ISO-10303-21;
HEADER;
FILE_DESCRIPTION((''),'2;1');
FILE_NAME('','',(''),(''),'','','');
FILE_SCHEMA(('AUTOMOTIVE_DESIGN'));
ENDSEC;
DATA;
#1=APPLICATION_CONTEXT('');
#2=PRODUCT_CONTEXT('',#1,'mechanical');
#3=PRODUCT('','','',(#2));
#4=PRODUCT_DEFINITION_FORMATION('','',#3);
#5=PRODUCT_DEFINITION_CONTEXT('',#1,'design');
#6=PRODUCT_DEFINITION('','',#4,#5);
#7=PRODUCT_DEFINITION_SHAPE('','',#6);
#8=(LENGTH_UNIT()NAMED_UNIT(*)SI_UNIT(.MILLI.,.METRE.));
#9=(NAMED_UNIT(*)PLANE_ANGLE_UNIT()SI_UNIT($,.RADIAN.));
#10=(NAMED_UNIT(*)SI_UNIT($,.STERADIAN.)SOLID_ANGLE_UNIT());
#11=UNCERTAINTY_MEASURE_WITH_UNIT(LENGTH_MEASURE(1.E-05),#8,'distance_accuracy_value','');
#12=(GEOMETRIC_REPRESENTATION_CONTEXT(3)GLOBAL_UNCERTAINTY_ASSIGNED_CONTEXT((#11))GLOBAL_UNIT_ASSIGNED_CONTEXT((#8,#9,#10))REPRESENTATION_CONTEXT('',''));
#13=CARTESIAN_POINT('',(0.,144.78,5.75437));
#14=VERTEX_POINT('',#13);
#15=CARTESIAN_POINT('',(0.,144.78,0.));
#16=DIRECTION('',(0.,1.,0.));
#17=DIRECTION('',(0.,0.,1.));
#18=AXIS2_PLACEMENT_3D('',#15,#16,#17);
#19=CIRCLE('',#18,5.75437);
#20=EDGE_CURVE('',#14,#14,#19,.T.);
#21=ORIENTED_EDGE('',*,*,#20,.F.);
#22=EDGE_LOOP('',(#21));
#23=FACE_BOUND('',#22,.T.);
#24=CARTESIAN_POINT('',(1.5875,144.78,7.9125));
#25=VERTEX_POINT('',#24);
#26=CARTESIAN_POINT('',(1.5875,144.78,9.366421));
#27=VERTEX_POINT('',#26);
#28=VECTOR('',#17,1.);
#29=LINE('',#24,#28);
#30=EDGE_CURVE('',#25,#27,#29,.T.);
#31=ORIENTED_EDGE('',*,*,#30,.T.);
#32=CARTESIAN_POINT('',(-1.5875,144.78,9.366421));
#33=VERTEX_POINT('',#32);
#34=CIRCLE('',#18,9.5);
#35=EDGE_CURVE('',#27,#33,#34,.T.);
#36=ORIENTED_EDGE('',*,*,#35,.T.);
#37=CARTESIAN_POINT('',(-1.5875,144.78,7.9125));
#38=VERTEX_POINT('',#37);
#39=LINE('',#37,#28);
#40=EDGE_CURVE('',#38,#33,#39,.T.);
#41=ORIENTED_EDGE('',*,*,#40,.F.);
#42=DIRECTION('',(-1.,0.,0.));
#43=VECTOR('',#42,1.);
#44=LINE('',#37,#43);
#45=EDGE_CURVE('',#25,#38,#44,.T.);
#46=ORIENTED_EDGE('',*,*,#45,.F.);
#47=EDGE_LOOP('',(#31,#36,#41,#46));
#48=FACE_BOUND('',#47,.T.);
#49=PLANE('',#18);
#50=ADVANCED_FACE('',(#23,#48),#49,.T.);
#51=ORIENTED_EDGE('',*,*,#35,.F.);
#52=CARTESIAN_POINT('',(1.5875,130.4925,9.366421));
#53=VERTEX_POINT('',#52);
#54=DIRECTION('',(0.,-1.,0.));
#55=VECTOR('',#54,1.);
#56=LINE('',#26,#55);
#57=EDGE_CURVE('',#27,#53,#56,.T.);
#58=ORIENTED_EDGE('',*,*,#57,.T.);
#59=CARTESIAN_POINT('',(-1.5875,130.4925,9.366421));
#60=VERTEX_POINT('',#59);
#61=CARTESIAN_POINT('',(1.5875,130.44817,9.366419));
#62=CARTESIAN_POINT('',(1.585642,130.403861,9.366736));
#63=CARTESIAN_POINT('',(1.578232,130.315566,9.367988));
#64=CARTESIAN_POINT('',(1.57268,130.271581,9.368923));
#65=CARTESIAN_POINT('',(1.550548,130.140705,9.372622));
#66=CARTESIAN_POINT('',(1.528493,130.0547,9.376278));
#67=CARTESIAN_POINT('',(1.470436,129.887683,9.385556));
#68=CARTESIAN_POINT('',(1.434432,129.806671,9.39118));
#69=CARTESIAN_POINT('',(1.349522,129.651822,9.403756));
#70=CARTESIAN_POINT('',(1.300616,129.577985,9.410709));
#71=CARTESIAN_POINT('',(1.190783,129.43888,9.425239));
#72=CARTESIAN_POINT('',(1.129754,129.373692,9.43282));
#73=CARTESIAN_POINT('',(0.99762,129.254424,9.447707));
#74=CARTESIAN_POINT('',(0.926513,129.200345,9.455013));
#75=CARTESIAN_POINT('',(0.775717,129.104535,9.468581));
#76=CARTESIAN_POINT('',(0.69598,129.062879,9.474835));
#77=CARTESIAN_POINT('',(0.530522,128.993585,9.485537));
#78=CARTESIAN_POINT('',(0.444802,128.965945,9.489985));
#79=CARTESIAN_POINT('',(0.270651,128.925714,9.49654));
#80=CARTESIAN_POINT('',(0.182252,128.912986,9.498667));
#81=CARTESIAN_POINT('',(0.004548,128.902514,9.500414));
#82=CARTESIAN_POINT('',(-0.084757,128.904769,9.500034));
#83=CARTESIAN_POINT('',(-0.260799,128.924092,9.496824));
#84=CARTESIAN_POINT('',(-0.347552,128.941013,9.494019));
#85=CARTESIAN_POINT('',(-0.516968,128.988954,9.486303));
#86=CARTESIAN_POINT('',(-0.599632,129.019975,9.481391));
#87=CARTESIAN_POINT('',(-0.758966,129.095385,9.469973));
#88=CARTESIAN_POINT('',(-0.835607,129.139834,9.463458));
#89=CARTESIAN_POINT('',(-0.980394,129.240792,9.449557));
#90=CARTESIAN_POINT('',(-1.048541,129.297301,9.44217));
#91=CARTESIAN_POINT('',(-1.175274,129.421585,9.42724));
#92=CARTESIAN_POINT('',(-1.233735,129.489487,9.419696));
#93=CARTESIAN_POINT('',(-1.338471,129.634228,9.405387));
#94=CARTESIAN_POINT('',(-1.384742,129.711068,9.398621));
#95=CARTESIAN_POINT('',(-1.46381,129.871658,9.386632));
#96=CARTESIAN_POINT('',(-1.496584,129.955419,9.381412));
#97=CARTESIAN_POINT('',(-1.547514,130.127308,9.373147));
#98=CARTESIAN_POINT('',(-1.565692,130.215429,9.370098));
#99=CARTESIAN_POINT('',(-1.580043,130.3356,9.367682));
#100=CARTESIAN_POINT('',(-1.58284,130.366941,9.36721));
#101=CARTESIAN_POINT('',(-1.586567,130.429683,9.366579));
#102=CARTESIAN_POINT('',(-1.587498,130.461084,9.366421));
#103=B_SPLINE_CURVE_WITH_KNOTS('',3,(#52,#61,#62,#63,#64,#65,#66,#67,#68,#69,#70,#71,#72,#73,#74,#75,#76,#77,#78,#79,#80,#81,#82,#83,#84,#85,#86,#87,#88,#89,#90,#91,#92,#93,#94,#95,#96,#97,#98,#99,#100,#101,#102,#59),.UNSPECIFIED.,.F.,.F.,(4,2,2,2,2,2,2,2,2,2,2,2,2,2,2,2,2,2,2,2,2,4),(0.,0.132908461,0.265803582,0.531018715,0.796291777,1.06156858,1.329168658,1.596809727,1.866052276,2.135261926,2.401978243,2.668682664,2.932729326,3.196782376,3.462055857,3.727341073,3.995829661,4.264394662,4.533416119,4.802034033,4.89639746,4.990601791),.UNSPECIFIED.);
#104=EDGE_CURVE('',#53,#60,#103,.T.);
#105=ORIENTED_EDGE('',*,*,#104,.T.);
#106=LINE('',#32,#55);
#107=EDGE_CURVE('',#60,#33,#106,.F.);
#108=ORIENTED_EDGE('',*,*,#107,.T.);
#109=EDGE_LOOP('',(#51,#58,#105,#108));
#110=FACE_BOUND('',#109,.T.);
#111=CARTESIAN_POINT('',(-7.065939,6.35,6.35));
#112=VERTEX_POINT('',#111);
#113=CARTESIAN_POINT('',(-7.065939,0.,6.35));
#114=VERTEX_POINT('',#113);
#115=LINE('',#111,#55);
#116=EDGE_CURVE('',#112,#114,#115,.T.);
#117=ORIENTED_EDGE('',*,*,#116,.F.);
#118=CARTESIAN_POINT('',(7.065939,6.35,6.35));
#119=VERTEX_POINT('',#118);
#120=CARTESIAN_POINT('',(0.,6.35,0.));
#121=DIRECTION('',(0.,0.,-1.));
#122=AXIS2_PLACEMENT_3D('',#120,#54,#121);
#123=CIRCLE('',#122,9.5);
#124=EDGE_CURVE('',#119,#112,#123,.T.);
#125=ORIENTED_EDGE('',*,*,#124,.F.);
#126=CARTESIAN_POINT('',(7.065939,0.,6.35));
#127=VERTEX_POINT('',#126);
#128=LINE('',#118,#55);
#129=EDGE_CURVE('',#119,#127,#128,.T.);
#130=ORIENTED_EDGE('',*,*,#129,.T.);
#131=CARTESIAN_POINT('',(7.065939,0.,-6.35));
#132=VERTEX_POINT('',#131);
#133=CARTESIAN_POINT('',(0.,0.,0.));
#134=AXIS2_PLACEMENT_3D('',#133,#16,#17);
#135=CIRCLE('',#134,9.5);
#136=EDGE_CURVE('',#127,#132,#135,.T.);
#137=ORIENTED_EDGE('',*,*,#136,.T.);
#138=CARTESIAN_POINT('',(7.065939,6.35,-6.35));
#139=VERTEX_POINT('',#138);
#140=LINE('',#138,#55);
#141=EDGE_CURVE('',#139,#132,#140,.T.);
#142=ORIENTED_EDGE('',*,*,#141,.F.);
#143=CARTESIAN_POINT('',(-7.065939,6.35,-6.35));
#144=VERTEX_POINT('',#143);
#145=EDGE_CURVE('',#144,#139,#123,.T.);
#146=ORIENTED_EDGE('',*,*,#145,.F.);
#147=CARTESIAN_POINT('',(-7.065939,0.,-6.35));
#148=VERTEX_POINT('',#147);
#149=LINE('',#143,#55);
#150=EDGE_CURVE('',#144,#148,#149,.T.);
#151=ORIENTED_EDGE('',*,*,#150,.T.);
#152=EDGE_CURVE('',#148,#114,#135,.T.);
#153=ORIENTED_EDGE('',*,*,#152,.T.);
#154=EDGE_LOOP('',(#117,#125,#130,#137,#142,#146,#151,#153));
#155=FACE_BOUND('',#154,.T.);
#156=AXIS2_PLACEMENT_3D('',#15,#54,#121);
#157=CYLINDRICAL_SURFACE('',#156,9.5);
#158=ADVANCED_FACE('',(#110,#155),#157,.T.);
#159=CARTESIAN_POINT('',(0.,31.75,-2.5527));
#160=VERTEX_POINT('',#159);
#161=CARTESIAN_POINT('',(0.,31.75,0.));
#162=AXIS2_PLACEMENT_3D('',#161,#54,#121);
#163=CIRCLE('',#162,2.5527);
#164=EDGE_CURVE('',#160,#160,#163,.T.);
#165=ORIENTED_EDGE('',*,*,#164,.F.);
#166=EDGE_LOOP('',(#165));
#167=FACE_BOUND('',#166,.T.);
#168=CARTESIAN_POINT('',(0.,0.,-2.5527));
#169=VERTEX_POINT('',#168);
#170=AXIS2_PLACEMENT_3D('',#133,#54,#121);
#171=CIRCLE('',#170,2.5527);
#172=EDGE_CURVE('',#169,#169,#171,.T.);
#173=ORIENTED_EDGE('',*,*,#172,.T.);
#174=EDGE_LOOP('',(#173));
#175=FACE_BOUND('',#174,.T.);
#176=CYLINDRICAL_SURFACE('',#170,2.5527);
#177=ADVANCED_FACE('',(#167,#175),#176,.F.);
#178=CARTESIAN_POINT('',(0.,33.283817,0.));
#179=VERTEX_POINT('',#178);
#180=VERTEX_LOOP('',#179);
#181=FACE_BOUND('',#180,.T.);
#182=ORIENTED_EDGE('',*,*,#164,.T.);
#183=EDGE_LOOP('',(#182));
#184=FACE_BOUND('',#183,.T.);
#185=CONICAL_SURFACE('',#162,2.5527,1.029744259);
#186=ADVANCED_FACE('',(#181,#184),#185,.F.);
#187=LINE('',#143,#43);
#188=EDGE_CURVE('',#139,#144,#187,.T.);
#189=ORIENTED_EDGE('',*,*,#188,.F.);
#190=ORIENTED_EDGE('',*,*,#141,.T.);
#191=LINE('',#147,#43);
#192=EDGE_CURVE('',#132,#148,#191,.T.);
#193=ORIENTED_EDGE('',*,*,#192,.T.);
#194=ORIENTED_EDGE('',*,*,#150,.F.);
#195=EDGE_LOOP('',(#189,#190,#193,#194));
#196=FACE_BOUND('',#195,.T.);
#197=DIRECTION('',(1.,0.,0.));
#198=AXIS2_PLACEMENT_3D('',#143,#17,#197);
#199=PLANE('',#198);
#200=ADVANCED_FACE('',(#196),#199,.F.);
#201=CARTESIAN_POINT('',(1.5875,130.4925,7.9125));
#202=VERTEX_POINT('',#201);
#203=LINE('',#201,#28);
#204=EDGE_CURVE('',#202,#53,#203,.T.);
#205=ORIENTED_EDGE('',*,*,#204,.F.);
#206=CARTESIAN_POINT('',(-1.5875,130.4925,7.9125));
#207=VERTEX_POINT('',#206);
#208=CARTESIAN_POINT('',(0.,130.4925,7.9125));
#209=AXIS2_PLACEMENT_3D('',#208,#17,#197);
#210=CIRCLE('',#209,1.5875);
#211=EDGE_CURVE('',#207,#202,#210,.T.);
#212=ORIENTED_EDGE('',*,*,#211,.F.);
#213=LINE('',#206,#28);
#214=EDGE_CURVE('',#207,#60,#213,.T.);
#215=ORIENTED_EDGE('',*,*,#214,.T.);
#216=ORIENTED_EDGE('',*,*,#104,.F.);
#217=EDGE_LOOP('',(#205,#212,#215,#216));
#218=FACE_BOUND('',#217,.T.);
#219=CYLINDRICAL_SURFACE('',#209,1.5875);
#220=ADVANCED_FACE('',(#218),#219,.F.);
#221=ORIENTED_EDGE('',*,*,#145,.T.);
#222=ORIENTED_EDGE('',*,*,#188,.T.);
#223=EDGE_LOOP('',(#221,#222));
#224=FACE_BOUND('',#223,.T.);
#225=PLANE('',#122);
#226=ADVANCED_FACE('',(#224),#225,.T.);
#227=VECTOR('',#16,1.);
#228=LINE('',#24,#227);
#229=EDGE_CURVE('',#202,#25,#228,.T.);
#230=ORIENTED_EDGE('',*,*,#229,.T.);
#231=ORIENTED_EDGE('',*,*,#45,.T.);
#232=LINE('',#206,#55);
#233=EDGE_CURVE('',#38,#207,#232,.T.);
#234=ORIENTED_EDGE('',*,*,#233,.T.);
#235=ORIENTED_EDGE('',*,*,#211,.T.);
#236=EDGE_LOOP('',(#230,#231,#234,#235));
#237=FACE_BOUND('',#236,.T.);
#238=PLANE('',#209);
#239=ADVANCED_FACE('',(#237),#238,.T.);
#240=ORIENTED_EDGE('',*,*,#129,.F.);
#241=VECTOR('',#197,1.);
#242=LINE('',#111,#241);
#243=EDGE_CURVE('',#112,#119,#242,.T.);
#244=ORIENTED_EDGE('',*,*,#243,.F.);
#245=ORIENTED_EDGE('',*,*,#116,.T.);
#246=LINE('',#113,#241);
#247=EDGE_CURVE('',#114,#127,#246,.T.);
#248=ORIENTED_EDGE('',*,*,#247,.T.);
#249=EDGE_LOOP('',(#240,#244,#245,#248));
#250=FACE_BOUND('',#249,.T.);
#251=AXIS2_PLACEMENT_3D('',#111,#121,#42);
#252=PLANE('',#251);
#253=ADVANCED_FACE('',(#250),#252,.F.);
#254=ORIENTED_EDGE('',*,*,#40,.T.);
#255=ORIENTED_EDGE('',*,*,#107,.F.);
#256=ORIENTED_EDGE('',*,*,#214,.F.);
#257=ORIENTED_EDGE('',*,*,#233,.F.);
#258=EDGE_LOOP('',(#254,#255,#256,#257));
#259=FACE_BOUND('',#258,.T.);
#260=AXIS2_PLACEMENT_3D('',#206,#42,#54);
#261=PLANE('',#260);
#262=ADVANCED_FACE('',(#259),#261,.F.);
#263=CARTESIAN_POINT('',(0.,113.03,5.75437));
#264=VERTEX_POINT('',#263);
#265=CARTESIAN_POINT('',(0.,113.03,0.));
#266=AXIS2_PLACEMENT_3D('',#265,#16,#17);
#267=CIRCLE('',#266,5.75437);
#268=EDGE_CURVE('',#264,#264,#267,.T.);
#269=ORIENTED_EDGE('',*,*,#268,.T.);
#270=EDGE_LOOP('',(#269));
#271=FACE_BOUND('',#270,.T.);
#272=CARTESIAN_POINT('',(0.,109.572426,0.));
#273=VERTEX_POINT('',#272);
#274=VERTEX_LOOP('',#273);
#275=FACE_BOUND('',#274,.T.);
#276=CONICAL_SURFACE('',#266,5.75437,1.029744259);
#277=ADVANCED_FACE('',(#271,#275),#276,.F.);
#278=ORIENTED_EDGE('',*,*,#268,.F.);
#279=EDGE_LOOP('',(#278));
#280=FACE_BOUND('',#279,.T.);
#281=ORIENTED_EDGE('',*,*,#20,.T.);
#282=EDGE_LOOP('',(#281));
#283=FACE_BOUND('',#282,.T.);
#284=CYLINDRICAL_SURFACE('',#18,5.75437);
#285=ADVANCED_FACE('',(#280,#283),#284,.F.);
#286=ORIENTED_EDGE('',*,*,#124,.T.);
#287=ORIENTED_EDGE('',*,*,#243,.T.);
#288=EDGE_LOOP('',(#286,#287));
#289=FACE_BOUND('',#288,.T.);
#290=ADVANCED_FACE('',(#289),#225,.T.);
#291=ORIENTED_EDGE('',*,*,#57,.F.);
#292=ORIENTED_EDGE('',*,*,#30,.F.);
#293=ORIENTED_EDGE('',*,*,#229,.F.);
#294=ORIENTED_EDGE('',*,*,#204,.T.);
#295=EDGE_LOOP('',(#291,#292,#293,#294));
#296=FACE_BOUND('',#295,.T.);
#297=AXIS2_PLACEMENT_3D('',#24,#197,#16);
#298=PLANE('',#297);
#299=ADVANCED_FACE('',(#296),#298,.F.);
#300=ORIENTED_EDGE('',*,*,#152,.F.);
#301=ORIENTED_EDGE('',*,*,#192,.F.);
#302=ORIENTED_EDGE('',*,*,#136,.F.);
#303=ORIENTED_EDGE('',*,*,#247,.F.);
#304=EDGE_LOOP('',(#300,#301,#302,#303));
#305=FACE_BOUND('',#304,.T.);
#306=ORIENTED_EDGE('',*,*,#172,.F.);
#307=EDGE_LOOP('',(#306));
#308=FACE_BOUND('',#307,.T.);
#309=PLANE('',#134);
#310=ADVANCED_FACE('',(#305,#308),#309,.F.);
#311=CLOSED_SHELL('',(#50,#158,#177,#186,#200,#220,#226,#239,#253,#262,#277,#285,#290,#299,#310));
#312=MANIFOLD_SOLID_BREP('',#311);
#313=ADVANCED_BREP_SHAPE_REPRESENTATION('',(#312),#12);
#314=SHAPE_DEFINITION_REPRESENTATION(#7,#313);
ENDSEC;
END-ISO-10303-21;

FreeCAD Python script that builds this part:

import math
import FreeCAD as App
import Part
import Sketcher
from FreeCAD import Vector
Q = App.Units.Quantity

doc = App.newDocument("Part")
params = doc.addObject("Spreadsheet::Sheet", "Params")
for row, (alias, value) in enumerate([
    ("pad1_length", "5.7 in"),
    ("pocket1_length", "0.25 in"),
    ("sketch3_diameter", "0.201 in"),
    ("hole_diameter", "0.201 in"),
    ("hole_depth", "1.25 in"),
    ("hole2_diameter", "0.4531 in"),
    ("hole2_depth", "1.25 in"),
    ("sketch5_radius", "0.0625 in"),
    ("sketch5_height", "0.5625 in"),
    ("pocket2_length", "0.0625 in"),
], start=1):
    params.set(f"A{row}", alias)
    params.set(f"B{row}", "=" + value)
    params.setAlias(f"B{row}", alias)

body = doc.addObject("PartDesign::Body", "Body")

# Sketch on XZ plane
sketch1 = body.newObject("Sketcher::SketchObject", "Sketch")
sketch1.AttachmentSupport = (doc.getObject("XZ_Plane"), [""])
sketch1.MapMode = "FlatFace"
sketch1.addGeometry(Part.Circle(Vector(0, 0, 0), Vector(0, 0, 1), 10), False)
sketch1.addConstraint(Sketcher.Constraint("Coincident", 0, 3, -1, 1))
sketch1.addConstraint(Sketcher.Constraint("Diameter", 0, Q("19 mm")))
pad1 = body.newObject("PartDesign::Pad", "Pad")
pad1.Profile = sketch1
pad1.setExpression("Length", "Params.pad1_length")
pad1.Reversed = True

# Sketch on XZ plane
sketch2 = body.newObject("Sketcher::SketchObject", "Sketch001")
sketch2.AttachmentSupport = (doc.getObject("XZ_Plane"), [""])
sketch2.MapMode = "FlatFace"
sketch2.addGeometry(Part.LineSegment(Vector(-7, 6, 0), Vector(7, 6, 0)), False)
sketch2.addGeometry(Part.ArcOfCircle(Part.Circle(Vector(0, 0, 0), Vector(0, 0, 1), 10), math.radians(42), math.radians(138)), False)
sketch2.addGeometry(Part.LineSegment(Vector(7, -6, 0), Vector(-7, -6, 0)), False)
sketch2.addGeometry(Part.ArcOfCircle(Part.Circle(Vector(0, 0, 0), Vector(0, 0, 1), 10), math.radians(-138), math.radians(-42)), False)
sketch2.addConstraint(Sketcher.Constraint("Coincident", 0, 1, 1, 2))
sketch2.addConstraint(Sketcher.Constraint("Coincident", 1, 1, 0, 2))
sketch2.addConstraint(Sketcher.Constraint("Coincident", 2, 1, 3, 2))
sketch2.addConstraint(Sketcher.Constraint("Coincident", 3, 1, 2, 2))
sketch2.addConstraint(Sketcher.Constraint("Horizontal", 0))
sketch2.addConstraint(Sketcher.Constraint("Horizontal", 2))
sketch2.addConstraint(Sketcher.Constraint("Coincident", 1, 3, -1, 1))
sketch2.addConstraint(Sketcher.Constraint("Coincident", 3, 3, -1, 1))
sketch2.addConstraint(Sketcher.Constraint("Equal", 1, 3))
sketch2.addConstraint(Sketcher.Constraint("Vertical", 1, 1, 2, 1))
sketch2.addConstraint(Sketcher.Constraint("DistanceY", 2, 1, 1, 1, Q("0.5 in")))
sketch2.addConstraint(Sketcher.Constraint("Radius", 1, Q("9.5 mm")))
pocket1 = body.newObject("PartDesign::Pocket", "Pocket")
pocket1.Profile = sketch2
pocket1.setExpression("Length", "Params.pocket1_length")

# Sketch on XZ plane
sketch3 = body.newObject("Sketcher::SketchObject", "Sketch002")
sketch3.AttachmentSupport = (doc.getObject("XZ_Plane"), [""])
sketch3.MapMode = "FlatFace"
sketch3.addGeometry(Part.Circle(Vector(0, 0, 0), Vector(0, 0, 1), 2.6), False)
sketch3.addConstraint(Sketcher.Constraint("Coincident", 0, 3, -1, 1))
sketch3.addConstraint(Sketcher.Constraint("Diameter", 0, Q("0.201 in")))
sketch3.setExpression("Constraints[1]", "Params.sketch3_diameter")
doc.recompute()
hole = body.newObject("PartDesign::Hole", "Hole")
hole.Profile = sketch3
hole.ThreadType = "None"
hole.setExpression("Diameter", "Params.hole_diameter")
hole.DepthType = "Dimension"
hole.setExpression("Depth", "Params.hole_depth")
hole.DrillPoint = "Angled"
hole.DrillPointAngle = 118

# Sketch on XZ plane
sketch4 = body.newObject("Sketcher::SketchObject", "Sketch003")
sketch4.AttachmentSupport = (doc.getObject("XZ_Plane"), [""])
sketch4.MapMode = "FlatFace"
sketch4.AttachmentOffset = App.Placement(Vector(0, 0, -5.7 * 25.4), App.Rotation())
sketch4.addGeometry(Part.Circle(Vector(0, 0, 0), Vector(0, 0, 1), 6), False)
sketch4.addConstraint(Sketcher.Constraint("Coincident", 0, 3, -1, 1))
sketch4.addConstraint(Sketcher.Constraint("Diameter", 0, Q("0.4531 in")))
doc.recompute()
hole2 = body.newObject("PartDesign::Hole", "Hole001")
hole2.Profile = sketch4
hole2.ThreadType = "None"
hole2.setExpression("Diameter", "Params.hole2_diameter")
hole2.DepthType = "Dimension"
hole2.setExpression("Depth", "Params.hole2_depth")
hole2.DrillPoint = "Angled"
hole2.DrillPointAngle = 118
hole2.Reversed = True

# Sketch on XY plane
sketch5 = body.newObject("Sketcher::SketchObject", "Sketch004")
sketch5.AttachmentSupport = (doc.getObject("XY_Plane"), [""])
sketch5.MapMode = "FlatFace"
sketch5.AttachmentOffset = App.Placement(Vector(0, 0, 9.5), App.Rotation())
sketch5.addGeometry(Part.LineSegment(Vector(-1.6, 144.8, 0), Vector(-1.6, 130.5, 0)), False)
sketch5.addGeometry(Part.ArcOfCircle(Part.Circle(Vector(0, 130.5, 0), Vector(0, 0, 1), 1.6), math.radians(180), math.radians(360)), False)
sketch5.addGeometry(Part.LineSegment(Vector(1.6, 130.5, 0), Vector(1.6, 144.8, 0)), False)
sketch5.addGeometry(Part.LineSegment(Vector(1.6, 144.8, 0), Vector(-1.6, 144.8, 0)), False)
sketch5.addConstraint(Sketcher.Constraint("Tangent", 0, 2, 1, 1))
sketch5.addConstraint(Sketcher.Constraint("Tangent", 1, 2, 2, 1))
sketch5.addConstraint(Sketcher.Constraint("Coincident", 2, 2, 3, 1))
sketch5.addConstraint(Sketcher.Constraint("Coincident", 3, 2, 0, 1))
sketch5.addConstraint(Sketcher.Constraint("Vertical", 0))
sketch5.addConstraint(Sketcher.Constraint("Vertical", 2))
sketch5.addConstraint(Sketcher.Constraint("Horizontal", 3))
sketch5.addConstraint(Sketcher.Constraint("PointOnObject", 1, 3, -2))
sketch5.addConstraint(Sketcher.Constraint("Radius", 1, Q("0.0625 in")))
sketch5.addConstraint(Sketcher.Constraint("DistanceY", -1, 1, 2, 2, Q("5.7 in")))
sketch5.addConstraint(Sketcher.Constraint("DistanceY", 0, 2, 0, 1, Q("0.5625 in")))
sketch5.setExpression("Constraints[8]", "Params.sketch5_radius")
sketch5.setExpression("Constraints[10]", "Params.sketch5_height")
pocket2 = body.newObject("PartDesign::Pocket", "Pocket001")
pocket2.Profile = sketch5
pocket2.setExpression("Length", "Params.pocket2_length")

doc.recompute()
